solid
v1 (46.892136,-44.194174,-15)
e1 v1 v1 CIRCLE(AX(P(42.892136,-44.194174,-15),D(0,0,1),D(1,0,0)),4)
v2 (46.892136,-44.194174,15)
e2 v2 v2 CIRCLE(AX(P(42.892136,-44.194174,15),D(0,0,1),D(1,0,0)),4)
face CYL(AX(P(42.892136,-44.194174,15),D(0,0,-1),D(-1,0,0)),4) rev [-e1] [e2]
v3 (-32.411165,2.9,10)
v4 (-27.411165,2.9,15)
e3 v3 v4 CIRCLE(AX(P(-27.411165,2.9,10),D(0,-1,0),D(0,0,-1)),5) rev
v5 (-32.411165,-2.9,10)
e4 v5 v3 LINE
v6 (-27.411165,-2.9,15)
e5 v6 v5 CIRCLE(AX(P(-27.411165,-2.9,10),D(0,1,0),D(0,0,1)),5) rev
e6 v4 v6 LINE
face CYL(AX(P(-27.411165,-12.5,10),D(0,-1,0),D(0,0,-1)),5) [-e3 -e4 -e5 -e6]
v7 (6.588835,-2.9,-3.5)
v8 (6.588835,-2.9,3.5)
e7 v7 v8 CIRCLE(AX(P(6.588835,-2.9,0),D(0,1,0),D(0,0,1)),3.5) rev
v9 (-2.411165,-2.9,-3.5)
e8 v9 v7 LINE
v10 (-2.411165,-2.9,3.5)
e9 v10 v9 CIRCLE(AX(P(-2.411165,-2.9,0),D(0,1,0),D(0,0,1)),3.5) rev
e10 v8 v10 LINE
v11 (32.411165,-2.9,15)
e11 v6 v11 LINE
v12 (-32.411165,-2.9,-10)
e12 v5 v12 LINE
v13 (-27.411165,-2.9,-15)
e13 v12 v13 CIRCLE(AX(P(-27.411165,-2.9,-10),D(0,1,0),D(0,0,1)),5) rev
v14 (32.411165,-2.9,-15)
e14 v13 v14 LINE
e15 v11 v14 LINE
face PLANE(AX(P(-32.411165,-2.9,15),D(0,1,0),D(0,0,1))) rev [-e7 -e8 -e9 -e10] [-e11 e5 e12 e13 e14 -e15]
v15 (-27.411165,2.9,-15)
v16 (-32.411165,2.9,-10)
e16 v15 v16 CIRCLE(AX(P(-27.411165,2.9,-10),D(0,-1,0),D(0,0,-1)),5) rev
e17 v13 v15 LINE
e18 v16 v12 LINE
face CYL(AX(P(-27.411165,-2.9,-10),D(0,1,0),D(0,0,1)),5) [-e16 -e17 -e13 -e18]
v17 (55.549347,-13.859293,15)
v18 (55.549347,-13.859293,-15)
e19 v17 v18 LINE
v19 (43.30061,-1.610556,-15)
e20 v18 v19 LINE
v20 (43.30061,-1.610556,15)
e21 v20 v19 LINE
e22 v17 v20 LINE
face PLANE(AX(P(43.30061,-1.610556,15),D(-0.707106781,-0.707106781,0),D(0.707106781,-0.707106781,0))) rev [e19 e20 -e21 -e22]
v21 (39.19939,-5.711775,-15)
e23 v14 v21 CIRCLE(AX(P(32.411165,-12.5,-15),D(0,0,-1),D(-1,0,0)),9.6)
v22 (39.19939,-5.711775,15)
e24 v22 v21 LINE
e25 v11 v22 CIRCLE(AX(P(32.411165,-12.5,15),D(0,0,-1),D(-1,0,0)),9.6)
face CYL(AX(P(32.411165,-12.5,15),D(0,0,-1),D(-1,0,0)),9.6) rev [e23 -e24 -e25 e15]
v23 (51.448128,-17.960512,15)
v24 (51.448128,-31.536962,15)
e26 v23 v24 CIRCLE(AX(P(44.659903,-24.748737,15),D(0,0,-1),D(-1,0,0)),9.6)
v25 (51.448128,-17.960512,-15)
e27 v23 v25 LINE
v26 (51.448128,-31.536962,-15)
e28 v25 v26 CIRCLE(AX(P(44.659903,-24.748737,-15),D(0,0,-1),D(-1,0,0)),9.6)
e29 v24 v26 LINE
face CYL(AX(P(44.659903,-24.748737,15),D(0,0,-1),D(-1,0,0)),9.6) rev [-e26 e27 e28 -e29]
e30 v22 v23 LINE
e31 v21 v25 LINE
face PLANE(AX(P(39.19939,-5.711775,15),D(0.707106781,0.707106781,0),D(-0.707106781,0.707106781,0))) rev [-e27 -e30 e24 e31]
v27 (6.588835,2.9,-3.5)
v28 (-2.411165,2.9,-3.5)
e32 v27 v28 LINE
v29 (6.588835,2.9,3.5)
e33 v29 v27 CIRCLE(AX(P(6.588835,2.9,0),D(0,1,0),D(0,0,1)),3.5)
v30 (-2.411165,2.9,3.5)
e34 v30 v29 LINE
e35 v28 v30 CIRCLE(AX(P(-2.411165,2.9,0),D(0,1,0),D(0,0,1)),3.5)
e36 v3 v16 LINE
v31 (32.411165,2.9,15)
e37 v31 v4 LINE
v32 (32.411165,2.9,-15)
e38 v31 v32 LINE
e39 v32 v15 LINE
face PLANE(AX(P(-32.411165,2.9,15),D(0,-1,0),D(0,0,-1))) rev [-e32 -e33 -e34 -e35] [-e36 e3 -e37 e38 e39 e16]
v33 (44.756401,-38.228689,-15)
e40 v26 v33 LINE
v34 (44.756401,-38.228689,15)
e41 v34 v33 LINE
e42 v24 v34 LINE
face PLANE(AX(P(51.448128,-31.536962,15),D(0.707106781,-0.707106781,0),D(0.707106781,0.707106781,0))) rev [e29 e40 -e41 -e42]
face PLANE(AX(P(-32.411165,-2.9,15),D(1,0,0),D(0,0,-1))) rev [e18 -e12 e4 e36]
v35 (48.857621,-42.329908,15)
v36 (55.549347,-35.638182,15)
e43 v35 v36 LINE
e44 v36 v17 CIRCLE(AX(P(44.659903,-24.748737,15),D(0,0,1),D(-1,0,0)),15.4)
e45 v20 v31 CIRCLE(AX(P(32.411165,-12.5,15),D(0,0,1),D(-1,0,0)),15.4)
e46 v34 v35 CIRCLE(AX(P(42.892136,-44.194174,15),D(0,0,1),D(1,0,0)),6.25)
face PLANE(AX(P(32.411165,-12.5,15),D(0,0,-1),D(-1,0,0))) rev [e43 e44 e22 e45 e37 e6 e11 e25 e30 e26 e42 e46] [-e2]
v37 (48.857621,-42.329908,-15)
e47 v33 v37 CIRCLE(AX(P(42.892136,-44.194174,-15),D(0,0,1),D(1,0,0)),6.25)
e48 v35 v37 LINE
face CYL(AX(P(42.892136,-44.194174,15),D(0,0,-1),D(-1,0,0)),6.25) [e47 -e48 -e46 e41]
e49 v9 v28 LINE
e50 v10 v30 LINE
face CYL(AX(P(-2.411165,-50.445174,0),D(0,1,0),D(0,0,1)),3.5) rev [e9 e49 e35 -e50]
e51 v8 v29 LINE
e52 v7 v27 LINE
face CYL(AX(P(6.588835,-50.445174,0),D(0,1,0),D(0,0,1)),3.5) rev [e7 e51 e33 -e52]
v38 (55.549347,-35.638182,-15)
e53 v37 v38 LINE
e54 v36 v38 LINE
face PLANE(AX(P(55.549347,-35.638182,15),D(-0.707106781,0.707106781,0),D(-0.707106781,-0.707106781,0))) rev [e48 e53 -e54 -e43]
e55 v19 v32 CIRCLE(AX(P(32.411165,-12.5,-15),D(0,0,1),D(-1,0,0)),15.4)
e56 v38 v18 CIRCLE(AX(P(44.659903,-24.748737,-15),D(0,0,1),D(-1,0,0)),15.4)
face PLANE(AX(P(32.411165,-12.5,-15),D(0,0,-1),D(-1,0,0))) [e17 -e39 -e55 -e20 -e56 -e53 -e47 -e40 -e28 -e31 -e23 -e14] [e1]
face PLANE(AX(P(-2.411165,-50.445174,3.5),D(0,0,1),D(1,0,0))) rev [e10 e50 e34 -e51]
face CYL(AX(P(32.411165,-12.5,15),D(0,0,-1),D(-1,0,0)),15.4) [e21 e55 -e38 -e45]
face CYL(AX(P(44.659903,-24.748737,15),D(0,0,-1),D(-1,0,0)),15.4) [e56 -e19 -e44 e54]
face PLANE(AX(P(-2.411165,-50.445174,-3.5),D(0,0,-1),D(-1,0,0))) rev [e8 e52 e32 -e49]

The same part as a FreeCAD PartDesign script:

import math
import FreeCAD as App
import Part
import Sketcher


def edges_at(feature, points):
    """Names of the edges that pass closest to the given points."""
    edges = feature.Shape.Edges
    near = lambda p: min(range(len(edges)), key=lambda i: edges[i].distToShape(Part.Vertex(*p))[0])
    return sorted({f"Edge{near(p) + 1}" for p in points})

doc = App.newDocument("Part")
body = doc.addObject("PartDesign::Body", "Body")

sketch1 = body.newObject("Sketcher::SketchObject", "Sketch")
sketch1.AttachmentSupport = (doc.getObject("XY_Plane"), [""])
sketch1.MapMode = "FlatFace"
sketch1.addGeometry(Part.LineSegment(App.Vector(-32.4, -2.9, 0), App.Vector(32.4, -2.9, 0)), False)
sketch1.addGeometry(Part.ArcOfCircle(Part.Circle(App.Vector(32.4, -12.5, 0), App.Vector(0, 0, 1), 9.6), math.radians(45), math.radians(90)), False)
sketch1.addGeometry(Part.LineSegment(App.Vector(39.2, -5.7, 0), App.Vector(51.4, -18, 0)), False)
sketch1.addGeometry(Part.ArcOfCircle(Part.Circle(App.Vector(44.7, -24.7, 0), App.Vector(0, 0, 1), 9.6), math.radians(-45), math.radians(45)), False)
sketch1.addGeometry(Part.LineSegment(App.Vector(51.4, -31.5, 0), App.Vector(44.8, -38.2, 0)), False)
sketch1.addGeometry(Part.ArcOfCircle(Part.Circle(App.Vector(42.9, -44.2, 0), App.Vector(0, 0, 1), 6.2), math.radians(73), math.radians(377)), False)
sketch1.addGeometry(Part.LineSegment(App.Vector(48.9, -42.3, 0), App.Vector(55.5, -35.6, 0)), False)
sketch1.addGeometry(Part.ArcOfCircle(Part.Circle(App.Vector(44.7, -24.7, 0), App.Vector(0, 0, 1), 15.4), math.radians(-45), math.radians(45)), False)
sketch1.addGeometry(Part.LineSegment(App.Vector(55.5, -13.9, 0), App.Vector(43.3, -1.6, 0)), False)
sketch1.addGeometry(Part.ArcOfCircle(Part.Circle(App.Vector(32.4, -12.5, 0), App.Vector(0, 0, 1), 15.4), math.radians(45), math.radians(90)), False)
sketch1.addGeometry(Part.LineSegment(App.Vector(32.4, 2.9, 0), App.Vector(-32.4, 2.9, 0)), False)
sketch1.addGeometry(Part.LineSegment(App.Vector(-32.4, 2.9, 0), App.Vector(-32.4, -2.9, 0)), False)
sketch1.addGeometry(Part.Circle(App.Vector(42.9, -44.2, 0), App.Vector(0, 0, 1), 4), False)
sketch1.addConstraint(Sketcher.Constraint("Tangent", 0, 2, 1, 2))
sketch1.addConstraint(Sketcher.Constraint("Tangent", 1, 1, 2, 1))
sketch1.addConstraint(Sketcher.Constraint("Tangent", 2, 2, 3, 2))
sketch1.addConstraint(Sketcher.Constraint("Tangent", 3, 1, 4, 1))
sketch1.addConstraint(Sketcher.Constraint("Coincident", 4, 2, 5, 1))
sketch1.addConstraint(Sketcher.Constraint("Coincident", 5, 2, 6, 1))
sketch1.addConstraint(Sketcher.Constraint("Tangent", 6, 2, 7, 1))
sketch1.addConstraint(Sketcher.Constraint("Tangent", 7, 2, 8, 1))
sketch1.addConstraint(Sketcher.Constraint("Tangent", 8, 2, 9, 1))
sketch1.addConstraint(Sketcher.Constraint("Tangent", 9, 2, 10, 1))
sketch1.addConstraint(Sketcher.Constraint("Coincident", 10, 2, 11, 1))
sketch1.addConstraint(Sketcher.Constraint("Coincident", 11, 2, 0, 1))
sketch1.addConstraint(Sketcher.Constraint("Horizontal", 0))
sketch1.addConstraint(Sketcher.Constraint("Horizontal", 10))
sketch1.addConstraint(Sketcher.Constraint("Vertical", 11))
sketch1.addConstraint(Sketcher.Constraint("Coincident", 7, 3, 3, 3))
sketch1.addConstraint(Sketcher.Constraint("Coincident", 9, 3, 1, 3))
sketch1.addConstraint(Sketcher.Constraint("Coincident", 12, 3, 5, 3))
sketch1.addConstraint(Sketcher.Constraint("Equal", 1, 3))
sketch1.addConstraint(Sketcher.Constraint("Equal", 7, 9))
sketch1.addConstraint(Sketcher.Constraint("Symmetric", 0, 2, 10, 2, -1, 1))
sketch1.addConstraint(Sketcher.Constraint("Perpendicular", 2, 4))
sketch1.addConstraint(Sketcher.Constraint("Parallel", 4, 6))
sketch1.addConstraint(Sketcher.Constraint("Vertical", 2, 2, 3, 1))
sketch1.addConstraint(Sketcher.Constraint("Equal", 4, 6))
sketch1.addConstraint(Sketcher.Constraint("Diameter", 12, 8.0))
sketch1.addConstraint(Sketcher.Constraint("Radius", 1, 9.6))
sketch1.addConstraint(Sketcher.Constraint("Radius", 7, 15.4))
sketch1.addConstraint(Sketcher.Constraint("Radius", 5, 6.25))
sketch1.addConstraint(Sketcher.Constraint("DistanceX", 0, 1, 0, 2, 64.82233))
sketch1.addConstraint(Sketcher.Constraint("DistanceX", -1, 1, 4, 2, 44.756401))
sketch1.addConstraint(Sketcher.Constraint("DistanceX", 3, 3, 4, 2, 0.096499))
pad1 = body.newObject("PartDesign::Pad", "Pad")
pad1.Profile = sketch1
pad1.Length = 30
pad1.Midplane = True

sketch2 = body.newObject("Sketcher::SketchObject", "Sketch001")
sketch2.AttachmentSupport = (doc.getObject("XZ_Plane"), [""])
sketch2.MapMode = "FlatFace"
sketch2.AttachmentOffset = App.Placement(App.Vector(0, 0, -2.9), App.Rotation())
sketch2.addGeometry(Part.LineSegment(App.Vector(6.6, -3.5, 0), App.Vector(-2.4, -3.5, 0)), False)
sketch2.addGeometry(Part.ArcOfCircle(Part.Circle(App.Vector(-2.4, 0, 0), App.Vector(0, 0, 1), 3.5), math.radians(90), math.radians(270)), False)
sketch2.addGeometry(Part.LineSegment(App.Vector(-2.4, 3.5, 0), App.Vector(6.6, 3.5, 0)), False)
sketch2.addGeometry(Part.ArcOfCircle(Part.Circle(App.Vector(6.6, 0, 0), App.Vector(0, 0, 1), 3.5), math.radians(-90), math.radians(90)), False)
sketch2.addConstraint(Sketcher.Constraint("Tangent", 0, 2, 1, 2))
sketch2.addConstraint(Sketcher.Constraint("Tangent", 1, 1, 2, 1))
sketch2.addConstraint(Sketcher.Constraint("Tangent", 2, 2, 3, 2))
sketch2.addConstraint(Sketcher.Constraint("Tangent", 3, 1, 0, 1))
sketch2.addConstraint(Sketcher.Constraint("Horizontal", 0))
sketch2.addConstraint(Sketcher.Constraint("Horizontal", 2))
sketch2.addConstraint(Sketcher.Constraint("PointOnObject", 1, 3, -1))
sketch2.addConstraint(Sketcher.Constraint("Radius", 1, 3.5))
sketch2.addConstraint(Sketcher.Constraint("DistanceX", 0, 2, 0, 1, 9.0))
sketch2.addConstraint(Sketcher.Constraint("DistanceX", 1, 3, -1, 1, 2.411165))
pocket1 = body.newObject("PartDesign::Pocket", "Pocket")
pocket1.Profile = sketch2
pocket1.Type = "UpToFirst"
pocket1.Reversed = True
doc.recompute()

fillet = body.newObject("PartDesign::Fillet", "Fillet")
fillet.Base = (pocket1, edges_at(pocket1, [(-32.411, 0, -15), (-32.411, 0, 15)]))
fillet.Radius = 5

doc.recompute()
